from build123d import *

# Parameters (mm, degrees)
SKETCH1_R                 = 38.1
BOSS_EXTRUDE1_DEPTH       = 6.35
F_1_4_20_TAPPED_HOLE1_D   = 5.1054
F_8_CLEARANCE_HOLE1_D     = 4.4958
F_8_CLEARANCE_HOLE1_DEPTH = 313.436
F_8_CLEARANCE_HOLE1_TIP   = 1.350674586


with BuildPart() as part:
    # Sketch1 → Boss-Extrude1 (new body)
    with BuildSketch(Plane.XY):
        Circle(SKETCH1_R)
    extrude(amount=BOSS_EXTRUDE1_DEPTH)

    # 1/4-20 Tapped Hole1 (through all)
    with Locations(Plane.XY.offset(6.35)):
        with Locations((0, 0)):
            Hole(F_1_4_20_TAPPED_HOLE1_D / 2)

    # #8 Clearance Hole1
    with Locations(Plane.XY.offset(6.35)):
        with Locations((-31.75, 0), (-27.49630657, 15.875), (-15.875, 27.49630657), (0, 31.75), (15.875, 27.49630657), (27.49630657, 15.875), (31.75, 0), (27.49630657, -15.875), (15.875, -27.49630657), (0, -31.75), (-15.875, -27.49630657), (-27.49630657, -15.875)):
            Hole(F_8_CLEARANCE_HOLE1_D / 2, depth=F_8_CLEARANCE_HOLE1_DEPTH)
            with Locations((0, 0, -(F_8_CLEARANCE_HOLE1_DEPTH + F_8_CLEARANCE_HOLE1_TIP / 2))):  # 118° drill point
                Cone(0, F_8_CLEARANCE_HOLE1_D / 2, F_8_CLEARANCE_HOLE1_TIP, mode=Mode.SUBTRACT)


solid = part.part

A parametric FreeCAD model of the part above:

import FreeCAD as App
import Part
import Sketcher
from FreeCAD import Vector
Q = App.Units.Quantity

doc = App.newDocument("Part")
body = doc.addObject("PartDesign::Body", "Body")

sketch1 = doc.addObject("Sketcher::SketchObject", "Sketch")
body.addObject(sketch1)
sketch1.AttachmentSupport = (doc.XY_Plane, [""])
sketch1.MapMode = "FlatFace"
sketch1.addGeometry(Part.Circle(Vector(0, 0, 0), Vector(0, 0, 1), 38.1), False)
sketch1.addConstraint([
    Sketcher.Constraint("Coincident", 0, 3, -1, 1),
    Sketcher.Constraint("Diameter", 0, Q("3 in")),
])
pad1 = doc.addObject("PartDesign::Pad", "Pad")
body.addObject(pad1)
pad1.Profile = sketch1
pad1.Length = Q("0.25 in")

sketch2 = doc.addObject("Sketcher::SketchObject", "Sketch001")
body.addObject(sketch2)
sketch2.AttachmentSupport = (doc.XY_Plane, [""])
sketch2.MapMode = "FlatFace"
sketch2.AttachmentOffset = App.Placement(Vector(0, 0, 0.25 * 25.4), App.Rotation())
sketch2.addGeometry(Part.Circle(Vector(0, 0, 0), Vector(0, 0, 1), 2.5527), False)
sketch2.addConstraint([
    Sketcher.Constraint("Coincident", 0, 3, -1, 1),
    Sketcher.Constraint("Diameter", 0, Q("0.201 in")),
])
doc.recompute()
hole = doc.addObject("PartDesign::Hole", "Hole")
body.addObject(hole)
hole.Profile = sketch2
hole.ThreadType = "None"
hole.Diameter = Q("0.201 in")
hole.DepthType = "ThroughAll"

sketch3 = doc.addObject("Sketcher::SketchObject", "Sketch002")
body.addObject(sketch3)
sketch3.AttachmentSupport = (doc.XY_Plane, [""])
sketch3.MapMode = "FlatFace"
sketch3.AttachmentOffset = App.Placement(Vector(0, 0, 0.25 * 25.4), App.Rotation())
sketch3.addGeometry([
    Part.Circle(Vector(-31.75, 0, 0), Vector(0, 0, 1), 2.2479),
    Part.Circle(Vector(-27.496307, 15.875, 0), Vector(0, 0, 1), 2.2479),
    Part.Circle(Vector(-15.875, 27.496307, 0), Vector(0, 0, 1), 2.2479),
    Part.Circle(Vector(0, 31.75, 0), Vector(0, 0, 1), 2.2479),
    Part.Circle(Vector(15.875, 27.496307, 0), Vector(0, 0, 1), 2.2479),
    Part.Circle(Vector(27.496307, 15.875, 0), Vector(0, 0, 1), 2.2479),
    Part.Circle(Vector(31.75, 0, 0), Vector(0, 0, 1), 2.2479),
    Part.Circle(Vector(27.496307, -15.875, 0), Vector(0, 0, 1), 2.2479),
    Part.Circle(Vector(15.875, -27.496307, 0), Vector(0, 0, 1), 2.2479),
    Part.Circle(Vector(0, -31.75, 0), Vector(0, 0, 1), 2.2479),
    Part.Circle(Vector(-15.875, -27.496307, 0), Vector(0, 0, 1), 2.2479),
    Part.Circle(Vector(-27.496307, -15.875, 0), Vector(0, 0, 1), 2.2479),
], False)
sketch3.addConstraint([
    Sketcher.Constraint("Equal", 0, 1),
    Sketcher.Constraint("Equal", 1, 2),
    Sketcher.Constraint("Equal", 2, 3),
    Sketcher.Constraint("Equal", 3, 4),
    Sketcher.Constraint("Equal", 4, 5),
    Sketcher.Constraint("Equal", 5, 6),
    Sketcher.Constraint("Equal", 6, 7),
    Sketcher.Constraint("Equal", 7, 8),
    Sketcher.Constraint("Equal", 8, 9),
    Sketcher.Constraint("Equal", 9, 10),
    Sketcher.Constraint("Equal", 10, 11),
    Sketcher.Constraint("Symmetric", 0, 3, 6, 3, -1, 1),
    Sketcher.Constraint("Symmetric", 1, 3, 7, 3, -1, 1),
    Sketcher.Constraint("Symmetric", 2, 3, 8, 3, -1, 1),
    Sketcher.Constraint("Symmetric", 3, 3, 9, 3, -1, 1),
    Sketcher.Constraint("Symmetric", 4, 3, 10, 3, -1, 1),
    Sketcher.Constraint("Symmetric", 5, 3, 11, 3, -1, 1),
    Sketcher.Constraint("Symmetric", 2, 3, 4, 3, -2),
    Sketcher.Constraint("Symmetric", 1, 3, 5, 3, -2),
    Sketcher.Constraint("PointOnObject", 0, 3, -1),
    Sketcher.Constraint("PointOnObject", 3, 3, -2),
    Sketcher.Constraint("Diameter", 0, Q("0.177 in")),
    Sketcher.Constraint("DistanceX", 0, 3, -1, 1, Q("1.25 in")),
    Sketcher.Constraint("DistanceY", -1, 1, 3, 3, Q("1.25 in")),
    Sketcher.Constraint("DistanceX", 2, 3, 4, 3, Q("1.25 in")),
    Sketcher.Constraint("DistanceY", 7, 3, 5, 3, Q("1.25 in")),
    Sketcher.Constraint("DistanceX", 1, 3, -1, 1, 27.496307),
    Sketcher.Constraint("DistanceY", -1, 1, 2, 3, 27.496307),
])
doc.recompute()
hole2 = doc.addObject("PartDesign::Hole", "Hole001")
body.addObject(hole2)
hole2.Profile = sketch3
hole2.ThreadType = "None"
hole2.Diameter = Q("0.177 in")
hole2.DepthType = "Dimension"
hole2.Depth = Q("12.34 in")
hole2.DrillPoint = "Angled"
hole2.DrillPointAngle = 118

doc.recompute()
